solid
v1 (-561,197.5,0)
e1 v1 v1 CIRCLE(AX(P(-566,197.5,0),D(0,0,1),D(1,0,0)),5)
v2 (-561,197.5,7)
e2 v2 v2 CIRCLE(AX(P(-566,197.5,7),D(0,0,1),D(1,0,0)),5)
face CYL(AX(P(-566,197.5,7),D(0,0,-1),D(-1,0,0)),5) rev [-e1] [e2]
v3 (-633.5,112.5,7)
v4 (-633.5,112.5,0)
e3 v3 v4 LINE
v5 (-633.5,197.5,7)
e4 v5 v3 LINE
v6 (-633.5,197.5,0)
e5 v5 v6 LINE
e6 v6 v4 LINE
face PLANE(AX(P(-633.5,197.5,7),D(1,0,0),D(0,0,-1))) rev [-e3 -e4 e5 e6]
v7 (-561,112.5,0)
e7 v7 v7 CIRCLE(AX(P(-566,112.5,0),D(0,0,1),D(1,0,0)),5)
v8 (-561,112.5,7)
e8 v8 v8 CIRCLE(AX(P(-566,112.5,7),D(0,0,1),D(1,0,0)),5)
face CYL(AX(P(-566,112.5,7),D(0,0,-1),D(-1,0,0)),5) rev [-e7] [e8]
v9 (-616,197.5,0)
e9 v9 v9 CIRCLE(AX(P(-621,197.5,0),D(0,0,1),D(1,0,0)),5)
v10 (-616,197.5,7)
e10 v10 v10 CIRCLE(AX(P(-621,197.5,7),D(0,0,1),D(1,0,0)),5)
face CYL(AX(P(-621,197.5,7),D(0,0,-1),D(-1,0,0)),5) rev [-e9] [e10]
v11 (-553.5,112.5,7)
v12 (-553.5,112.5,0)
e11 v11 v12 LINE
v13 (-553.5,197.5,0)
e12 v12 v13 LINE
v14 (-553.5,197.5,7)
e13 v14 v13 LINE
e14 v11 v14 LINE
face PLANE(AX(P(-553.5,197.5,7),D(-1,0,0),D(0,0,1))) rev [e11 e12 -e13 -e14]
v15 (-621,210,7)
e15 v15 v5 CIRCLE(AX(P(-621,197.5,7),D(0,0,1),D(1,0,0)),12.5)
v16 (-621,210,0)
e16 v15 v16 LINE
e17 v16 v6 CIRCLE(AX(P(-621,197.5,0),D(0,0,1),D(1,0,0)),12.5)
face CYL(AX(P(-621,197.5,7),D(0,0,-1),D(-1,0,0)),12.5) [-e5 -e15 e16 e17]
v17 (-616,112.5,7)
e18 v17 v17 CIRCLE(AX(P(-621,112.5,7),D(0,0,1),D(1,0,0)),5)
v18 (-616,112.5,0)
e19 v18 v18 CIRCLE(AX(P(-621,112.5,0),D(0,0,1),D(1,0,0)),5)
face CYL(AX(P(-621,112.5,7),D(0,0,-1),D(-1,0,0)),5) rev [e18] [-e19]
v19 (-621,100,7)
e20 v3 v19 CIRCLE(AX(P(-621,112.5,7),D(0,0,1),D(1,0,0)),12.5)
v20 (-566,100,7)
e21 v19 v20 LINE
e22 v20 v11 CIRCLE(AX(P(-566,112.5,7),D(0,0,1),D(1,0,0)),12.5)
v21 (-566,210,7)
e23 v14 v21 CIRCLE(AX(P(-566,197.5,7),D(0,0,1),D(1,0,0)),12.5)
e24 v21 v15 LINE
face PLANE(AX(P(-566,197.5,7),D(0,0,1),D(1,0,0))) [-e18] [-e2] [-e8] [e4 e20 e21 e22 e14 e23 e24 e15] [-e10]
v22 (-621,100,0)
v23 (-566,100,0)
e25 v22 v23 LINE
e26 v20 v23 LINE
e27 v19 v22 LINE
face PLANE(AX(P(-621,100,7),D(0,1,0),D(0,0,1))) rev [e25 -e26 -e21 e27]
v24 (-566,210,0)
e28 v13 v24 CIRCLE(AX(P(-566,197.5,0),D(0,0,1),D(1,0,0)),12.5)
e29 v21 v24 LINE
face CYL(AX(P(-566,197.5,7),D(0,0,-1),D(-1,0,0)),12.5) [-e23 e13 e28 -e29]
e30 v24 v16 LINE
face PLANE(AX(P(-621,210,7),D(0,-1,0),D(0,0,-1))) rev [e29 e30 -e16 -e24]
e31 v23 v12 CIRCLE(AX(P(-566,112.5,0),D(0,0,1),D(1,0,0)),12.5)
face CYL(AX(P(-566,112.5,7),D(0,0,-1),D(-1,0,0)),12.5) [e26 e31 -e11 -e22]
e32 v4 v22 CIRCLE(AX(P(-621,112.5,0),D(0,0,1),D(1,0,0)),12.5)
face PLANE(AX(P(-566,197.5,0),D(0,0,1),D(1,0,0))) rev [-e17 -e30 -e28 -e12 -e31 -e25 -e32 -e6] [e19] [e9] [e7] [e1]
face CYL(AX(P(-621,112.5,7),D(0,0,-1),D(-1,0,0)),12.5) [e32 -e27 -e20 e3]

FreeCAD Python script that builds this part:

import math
import FreeCAD as App
import Part
import Sketcher

V = App.Vector

doc = App.newDocument("Part")
params = doc.addObject("Spreadsheet::Sheet", "Params")
for row, (alias, value) in enumerate([
    ("sketch1_diameter", "10 mm"),
    ("sketch1_radius", "12.5 mm"),
    ("sketch1_width", "55 mm"),
    ("sketch1_height", "85 mm"),
    ("pad1_length", "7 mm"),
], start=1):
    params.set(f"A{row}", alias)
    params.set(f"B{row}", "=" + value)
    params.setAlias(f"B{row}", alias)

body = doc.addObject("PartDesign::Body", "Body")

# Sketch on XY plane
sketch1 = body.newObject("Sketcher::SketchObject", "Sketch")
sketch1.AttachmentSupport = (doc.getObject("XY_Plane"), [""])
sketch1.MapMode = "FlatFace"
sketch1.addGeometry([
    Part.LineSegment(V(-566, 210, 0), V(-621, 210, 0)),  # 0
    Part.ArcOfCircle(Part.Circle(V(-621, 197.5, 0), V(0, 0, 1), 12.5), math.radians(90), math.radians(180)),  # 1
    Part.LineSegment(V(-633.5, 197.5, 0), V(-633.5, 112.5, 0)),  # 2
    Part.ArcOfCircle(Part.Circle(V(-621, 112.5, 0), V(0, 0, 1), 12.5), math.radians(180), math.radians(270)),  # 3
    Part.LineSegment(V(-621, 100, 0), V(-566, 100, 0)),  # 4
    Part.ArcOfCircle(Part.Circle(V(-566, 112.5, 0), V(0, 0, 1), 12.5), math.radians(-90), math.radians(0)),  # 5
    Part.LineSegment(V(-553.5, 112.5, 0), V(-553.5, 197.5, 0)),  # 6
    Part.ArcOfCircle(Part.Circle(V(-566, 197.5, 0), V(0, 0, 1), 12.5), math.radians(0), math.radians(90)),  # 7
    Part.Circle(V(-566, 112.5, 0), V(0, 0, 1), 5),  # 8
    Part.Circle(V(-621, 112.5, 0), V(0, 0, 1), 5),  # 9
    Part.Circle(V(-566, 197.5, 0), V(0, 0, 1), 5),  # 10
    Part.Circle(V(-621, 197.5, 0), V(0, 0, 1), 5),  # 11
], False)
sketch1.addConstraint([
    Sketcher.Constraint("Tangent", 0, 2, 1, 1),
    Sketcher.Constraint("Tangent", 1, 2, 2, 1),
    Sketcher.Constraint("Tangent", 2, 2, 3, 1),
    Sketcher.Constraint("Tangent", 3, 2, 4, 1),
    Sketcher.Constraint("Tangent", 4, 2, 5, 1),
    Sketcher.Constraint("Tangent", 5, 2, 6, 1),
    Sketcher.Constraint("Tangent", 6, 2, 7, 1),
    Sketcher.Constraint("Tangent", 7, 2, 0, 1),
    Sketcher.Constraint("Horizontal", 0),
    Sketcher.Constraint("Vertical", 2),
    Sketcher.Constraint("Horizontal", 4),
    Sketcher.Constraint("Vertical", 6),
    Sketcher.Constraint("Coincident", 8, 3, 5, 3),
    Sketcher.Constraint("Coincident", 9, 3, 3, 3),
    Sketcher.Constraint("Coincident", 10, 3, 7, 3),
    Sketcher.Constraint("Coincident", 11, 3, 1, 3),
    Sketcher.Constraint("Equal", 1, 3),
    Sketcher.Constraint("Equal", 3, 5),
    Sketcher.Constraint("Equal", 5, 7),
    Sketcher.Constraint("Equal", 8, 9),
    Sketcher.Constraint("Equal", 9, 10),
    Sketcher.Constraint("Equal", 10, 11),
    Sketcher.Constraint("Diameter", 8, 10.0),
    Sketcher.Constraint("Radius", 1, 12.5),
    Sketcher.Constraint("DistanceX", 0, 2, 0, 1, 55.0),
    Sketcher.Constraint("DistanceY", 2, 2, 2, 1, 85.0),
    Sketcher.Constraint("DistanceX", 1, 3, -1, 1, 621.0),
    Sketcher.Constraint("DistanceY", -1, 1, 0, 2, 210.0),
])
sketch1.setExpression("Constraints[22]", "Params.sketch1_diameter")
sketch1.setExpression("Constraints[23]", "Params.sketch1_radius")
sketch1.setExpression("Constraints[24]", "Params.sketch1_width")
sketch1.setExpression("Constraints[25]", "Params.sketch1_height")
pad1 = body.newObject("PartDesign::Pad", "Pad")
pad1.Profile = sketch1
pad1.setExpression("Length", "Params.pad1_length")

doc.recompute()
